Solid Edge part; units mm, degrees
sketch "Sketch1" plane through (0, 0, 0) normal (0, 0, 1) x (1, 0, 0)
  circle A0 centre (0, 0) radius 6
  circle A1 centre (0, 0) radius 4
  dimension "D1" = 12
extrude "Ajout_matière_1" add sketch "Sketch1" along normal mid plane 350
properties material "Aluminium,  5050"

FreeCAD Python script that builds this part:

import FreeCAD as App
import Part
import Sketcher

V = App.Vector
Q = App.Units.Quantity

doc = App.newDocument("Part")
body = doc.addObject("PartDesign::Body", "Body")

# Sketch on XY plane
sketch1 = doc.addObject("Sketcher::SketchObject", "Sketch")
body.addObject(sketch1)
sketch1.AttachmentSupport = (doc.XY_Plane, [""])
sketch1.MapMode = "FlatFace"
sketch1.addGeometry(Part.Circle(V(0, 0, 0), V(0, 0, 1), 6), False)
sketch1.addGeometry(Part.Circle(V(0, 0, 0), V(0, 0, 1), 4), False)
sketch1.addConstraint(Sketcher.Constraint("Coincident", 0, 3, -1, 1))
sketch1.addConstraint(Sketcher.Constraint("Coincident", 1, 3, -1, 1))
sketch1.addConstraint(Sketcher.Constraint("Diameter", 0, Q("12 mm")))
sketch1.addConstraint(Sketcher.Constraint("Diameter", 1, Q("8 mm")))
pad1 = doc.addObject("PartDesign::Pad", "Pad")
body.addObject(pad1)
pad1.Profile = sketch1
pad1.Length = 350
pad1.Midplane = True

doc.recompute()
